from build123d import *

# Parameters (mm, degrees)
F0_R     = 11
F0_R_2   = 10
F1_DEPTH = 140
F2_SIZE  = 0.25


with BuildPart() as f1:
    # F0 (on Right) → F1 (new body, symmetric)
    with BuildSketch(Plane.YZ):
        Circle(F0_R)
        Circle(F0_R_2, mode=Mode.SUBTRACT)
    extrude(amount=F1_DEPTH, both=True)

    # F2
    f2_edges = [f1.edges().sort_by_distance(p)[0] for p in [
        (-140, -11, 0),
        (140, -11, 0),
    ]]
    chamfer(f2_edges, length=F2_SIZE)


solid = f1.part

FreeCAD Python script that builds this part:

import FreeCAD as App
import Part
import Sketcher

V = App.Vector
Q = App.Units.Quantity


def edges_at(feature, points):
    """Names of the edges that pass closest to the given points."""
    edges = feature.Shape.Edges
    near = lambda p: min(range(len(edges)), key=lambda i: edges[i].distToShape(Part.Vertex(*p))[0])
    return sorted({f"Edge{near(p) + 1}" for p in points})

doc = App.newDocument("Part")
body = doc.addObject("PartDesign::Body", "Body")

# Sketch on YZ plane
sketch1 = body.newObject("Sketcher::SketchObject", "Sketch")
sketch1.AttachmentSupport = (doc.getObject("YZ_Plane"), [""])
sketch1.MapMode = "FlatFace"
sketch1.addGeometry([
    Part.Circle(V(0, 0, 0), V(0, 0, 1), 11),
    Part.Circle(V(0, 0, 0), V(0, 0, 1), 10),
], False)
sketch1.addConstraint([
    Sketcher.Constraint("Coincident", 0, 3, -1, 1),
    Sketcher.Constraint("Coincident", 1, 3, -1, 1),
    Sketcher.Constraint("Diameter", 0, Q("22 mm")),
    Sketcher.Constraint("Diameter", 1, Q("20 mm")),
])
pad1 = body.newObject("PartDesign::Pad", "Pad")
pad1.Profile = sketch1
pad1.Length = 280
pad1.Midplane = True
doc.recompute()

chamfer = body.newObject("PartDesign::Chamfer", "Chamfer")
chamfer.Base = (pad1, edges_at(pad1, [(-140, -11, 0), (140, -11, 0)]))
chamfer.Size = 0.25

doc.recompute()
